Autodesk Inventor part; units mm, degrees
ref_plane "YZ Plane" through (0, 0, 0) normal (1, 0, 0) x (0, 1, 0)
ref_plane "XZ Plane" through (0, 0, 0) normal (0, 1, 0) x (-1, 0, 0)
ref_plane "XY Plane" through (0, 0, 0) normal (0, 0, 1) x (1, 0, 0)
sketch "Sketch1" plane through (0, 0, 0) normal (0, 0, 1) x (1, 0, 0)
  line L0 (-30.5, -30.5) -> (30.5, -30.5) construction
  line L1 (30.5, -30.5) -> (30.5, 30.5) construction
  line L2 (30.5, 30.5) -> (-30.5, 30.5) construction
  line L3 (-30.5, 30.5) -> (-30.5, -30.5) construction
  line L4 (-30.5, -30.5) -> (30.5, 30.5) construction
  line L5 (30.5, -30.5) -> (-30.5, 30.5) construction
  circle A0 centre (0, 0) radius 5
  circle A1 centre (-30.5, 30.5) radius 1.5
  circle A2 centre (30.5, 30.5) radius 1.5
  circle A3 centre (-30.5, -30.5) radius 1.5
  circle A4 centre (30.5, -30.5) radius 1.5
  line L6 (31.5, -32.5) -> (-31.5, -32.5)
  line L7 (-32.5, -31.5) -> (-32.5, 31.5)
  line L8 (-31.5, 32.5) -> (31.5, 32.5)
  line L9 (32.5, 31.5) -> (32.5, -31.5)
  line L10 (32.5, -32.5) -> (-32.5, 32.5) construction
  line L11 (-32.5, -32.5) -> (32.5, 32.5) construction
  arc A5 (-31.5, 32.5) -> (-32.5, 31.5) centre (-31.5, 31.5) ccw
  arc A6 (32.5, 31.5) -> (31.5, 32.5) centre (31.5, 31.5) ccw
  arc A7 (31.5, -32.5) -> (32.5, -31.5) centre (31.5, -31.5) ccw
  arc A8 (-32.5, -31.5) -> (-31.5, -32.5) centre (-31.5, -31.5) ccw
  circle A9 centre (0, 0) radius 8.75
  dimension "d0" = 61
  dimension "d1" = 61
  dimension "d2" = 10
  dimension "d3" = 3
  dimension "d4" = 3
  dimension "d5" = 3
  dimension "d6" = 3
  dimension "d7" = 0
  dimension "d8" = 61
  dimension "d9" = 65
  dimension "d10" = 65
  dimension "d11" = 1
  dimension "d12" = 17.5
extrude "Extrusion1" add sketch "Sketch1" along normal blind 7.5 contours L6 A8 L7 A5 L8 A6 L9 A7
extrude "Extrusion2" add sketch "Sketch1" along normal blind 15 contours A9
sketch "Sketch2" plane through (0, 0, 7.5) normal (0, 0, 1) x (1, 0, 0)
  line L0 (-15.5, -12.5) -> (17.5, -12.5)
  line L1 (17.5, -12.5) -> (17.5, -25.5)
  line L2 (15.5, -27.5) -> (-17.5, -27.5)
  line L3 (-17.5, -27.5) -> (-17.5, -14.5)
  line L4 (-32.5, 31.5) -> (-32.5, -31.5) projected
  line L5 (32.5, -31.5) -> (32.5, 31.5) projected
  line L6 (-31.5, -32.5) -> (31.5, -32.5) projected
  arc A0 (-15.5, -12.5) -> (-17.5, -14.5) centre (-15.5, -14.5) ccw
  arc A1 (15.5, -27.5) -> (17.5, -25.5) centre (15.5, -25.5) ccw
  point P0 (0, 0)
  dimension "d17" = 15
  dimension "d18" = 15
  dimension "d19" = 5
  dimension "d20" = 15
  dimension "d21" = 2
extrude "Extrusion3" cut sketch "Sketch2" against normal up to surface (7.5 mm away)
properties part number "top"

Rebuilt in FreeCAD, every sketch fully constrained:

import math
import FreeCAD as App
import Part
import Sketcher

doc = App.newDocument("Part")
body = doc.addObject("PartDesign::Body", "Body")

sketch1 = doc.addObject("Sketcher::SketchObject", "Sketch")
body.addObject(sketch1)
sketch1.AttachmentSupport = (doc.XY_Plane, [""])
sketch1.MapMode = "FlatFace"
sketch1.addGeometry(Part.LineSegment(App.Vector(-31.5, -32.5, 0), App.Vector(31.5, -32.5, 0)), False)
sketch1.addGeometry(Part.ArcOfCircle(Part.Circle(App.Vector(31.5, -31.5, 0), App.Vector(0, 0, 1), 1), math.radians(-90), math.radians(0)), False)
sketch1.addGeometry(Part.LineSegment(App.Vector(32.5, -31.5, 0), App.Vector(32.5, 31.5, 0)), False)
sketch1.addGeometry(Part.ArcOfCircle(Part.Circle(App.Vector(31.5, 31.5, 0), App.Vector(0, 0, 1), 1), math.radians(0), math.radians(90)), False)
sketch1.addGeometry(Part.LineSegment(App.Vector(31.5, 32.5, 0), App.Vector(-31.5, 32.5, 0)), False)
sketch1.addGeometry(Part.ArcOfCircle(Part.Circle(App.Vector(-31.5, 31.5, 0), App.Vector(0, 0, 1), 1), math.radians(90), math.radians(180)), False)
sketch1.addGeometry(Part.LineSegment(App.Vector(-32.5, 31.5, 0), App.Vector(-32.5, -31.5, 0)), False)
sketch1.addGeometry(Part.ArcOfCircle(Part.Circle(App.Vector(-31.5, -31.5, 0), App.Vector(0, 0, 1), 1), math.radians(180), math.radians(270)), False)
sketch1.addGeometry(Part.Circle(App.Vector(-30.5, -30.5, 0), App.Vector(0, 0, 1), 1.5), False)
sketch1.addGeometry(Part.Circle(App.Vector(30.5, -30.5, 0), App.Vector(0, 0, 1), 1.5), False)
sketch1.addGeometry(Part.Circle(App.Vector(-30.5, 30.5, 0), App.Vector(0, 0, 1), 1.5), False)
sketch1.addGeometry(Part.Circle(App.Vector(0, 0, 0), App.Vector(0, 0, 1), 8.75), False)
sketch1.addGeometry(Part.Circle(App.Vector(30.5, 30.5, 0), App.Vector(0, 0, 1), 1.5), False)
sketch1.addConstraint(Sketcher.Constraint("Tangent", 0, 2, 1, 1))
sketch1.addConstraint(Sketcher.Constraint("Tangent", 1, 2, 2, 1))
sketch1.addConstraint(Sketcher.Constraint("Tangent", 2, 2, 3, 1))
sketch1.addConstraint(Sketcher.Constraint("Tangent", 3, 2, 4, 1))
sketch1.addConstraint(Sketcher.Constraint("Tangent", 4, 2, 5, 1))
sketch1.addConstraint(Sketcher.Constraint("Tangent", 5, 2, 6, 1))
sketch1.addConstraint(Sketcher.Constraint("Tangent", 6, 2, 7, 1))
sketch1.addConstraint(Sketcher.Constraint("Tangent", 7, 2, 0, 1))
sketch1.addConstraint(Sketcher.Constraint("Horizontal", 0))
sketch1.addConstraint(Sketcher.Constraint("Vertical", 2))
sketch1.addConstraint(Sketcher.Constraint("Horizontal", 4))
sketch1.addConstraint(Sketcher.Constraint("Vertical", 6))
sketch1.addConstraint(Sketcher.Constraint("Coincident", 11, 3, -1, 1))
sketch1.addConstraint(Sketcher.Constraint("Equal", 1, 3))
sketch1.addConstraint(Sketcher.Constraint("Equal", 3, 5))
sketch1.addConstraint(Sketcher.Constraint("Equal", 5, 7))
sketch1.addConstraint(Sketcher.Constraint("Equal", 8, 9))
sketch1.addConstraint(Sketcher.Constraint("Equal", 9, 10))
sketch1.addConstraint(Sketcher.Constraint("Equal", 10, 12))
sketch1.addConstraint(Sketcher.Constraint("Symmetric", 1, 3, 5, 3, -1, 1))
sketch1.addConstraint(Sketcher.Constraint("Symmetric", 9, 3, 10, 3, -1, 1))
sketch1.addConstraint(Sketcher.Constraint("Symmetric", 8, 3, 12, 3, -1, 1))
sketch1.addConstraint(Sketcher.Constraint("Symmetric", 8, 3, 9, 3, -2))
sketch1.addConstraint(Sketcher.Constraint("Equal", 4, 2))
sketch1.addConstraint(Sketcher.Constraint("Diameter", 8, 3.0))
sketch1.addConstraint(Sketcher.Constraint("Radius", 1, 1.0))
sketch1.addConstraint(Sketcher.Constraint("Diameter", 11, 17.5))
sketch1.addConstraint(Sketcher.Constraint("DistanceX", 7, 3, 8, 3, 1.0))
sketch1.addConstraint(Sketcher.Constraint("DistanceY", 7, 3, 8, 3, 1.0))
sketch1.addConstraint(Sketcher.Constraint("DistanceX", 8, 3, 9, 3, 61.0))
pad1 = doc.addObject("PartDesign::Pad", "Pad")
body.addObject(pad1)
pad1.Profile = sketch1
pad1.Length = 7.5

sketch2 = doc.addObject("Sketcher::SketchObject", "Sketch001")
body.addObject(sketch2)
sketch2.AttachmentSupport = (doc.XY_Plane, [""])
sketch2.MapMode = "FlatFace"
sketch2.addGeometry(Part.Circle(App.Vector(0, 0, 0), App.Vector(0, 0, 1), 8.75), False)
sketch2.addGeometry(Part.Circle(App.Vector(0, 0, 0), App.Vector(0, 0, 1), 5), False)
sketch2.addConstraint(Sketcher.Constraint("Coincident", 0, 3, -1, 1))
sketch2.addConstraint(Sketcher.Constraint("Coincident", 1, 3, -1, 1))
sketch2.addConstraint(Sketcher.Constraint("Diameter", 1, 10.0))
sketch2.addConstraint(Sketcher.Constraint("Diameter", 0, 17.5))
pad2 = doc.addObject("PartDesign::Pad", "Pad001")
body.addObject(pad2)
pad2.Profile = sketch2
pad2.Length = 15

sketch3 = doc.addObject("Sketcher::SketchObject", "Sketch002")
body.addObject(sketch3)
sketch3.AttachmentSupport = (doc.XY_Plane, [""])
sketch3.MapMode = "FlatFace"
sketch3.AttachmentOffset = App.Placement(App.Vector(0, 0, 7.5), App.Rotation())
sketch3.addGeometry(Part.LineSegment(App.Vector(17.5, -12.5, 0), App.Vector(-15.5, -12.5, 0)), False)
sketch3.addGeometry(Part.ArcOfCircle(Part.Circle(App.Vector(-15.5, -14.5, 0), App.Vector(0, 0, 1), 2), math.radians(90), math.radians(180)), False)
sketch3.addGeometry(Part.LineSegment(App.Vector(-17.5, -14.5, 0), App.Vector(-17.5, -27.5, 0)), False)
sketch3.addGeometry(Part.LineSegment(App.Vector(-17.5, -27.5, 0), App.Vector(15.5, -27.5, 0)), False)
sketch3.addGeometry(Part.ArcOfCircle(Part.Circle(App.Vector(15.5, -25.5, 0), App.Vector(0, 0, 1), 2), math.radians(-90), math.radians(0)), False)
sketch3.addGeometry(Part.LineSegment(App.Vector(17.5, -25.5, 0), App.Vector(17.5, -12.5, 0)), False)
sketch3.addConstraint(Sketcher.Constraint("Tangent", 0, 2, 1, 1))
sketch3.addConstraint(Sketcher.Constraint("Tangent", 1, 2, 2, 1))
sketch3.addConstraint(Sketcher.Constraint("Coincident", 2, 2, 3, 1))
sketch3.addConstraint(Sketcher.Constraint("Tangent", 3, 2, 4, 1))
sketch3.addConstraint(Sketcher.Constraint("Tangent", 4, 2, 5, 1))
sketch3.addConstraint(Sketcher.Constraint("Coincident", 5, 2, 0, 1))
sketch3.addConstraint(Sketcher.Constraint("Horizontal", 0))
sketch3.addConstraint(Sketcher.Constraint("Vertical", 2))
sketch3.addConstraint(Sketcher.Constraint("Horizontal", 3))
sketch3.addConstraint(Sketcher.Constraint("Vertical", 5))
sketch3.addConstraint(Sketcher.Constraint("Equal", 1, 4))
sketch3.addConstraint(Sketcher.Constraint("Radius", 1, 2.0))
sketch3.addConstraint(Sketcher.Constraint("DistanceY", 2, 2, 0, 2, 15.0))
sketch3.addConstraint(Sketcher.Constraint("DistanceX", 0, 2, 0, 1, 33.0))
sketch3.addConstraint(Sketcher.Constraint("DistanceX", 1, 3, -1, 1, 15.5))
sketch3.addConstraint(Sketcher.Constraint("DistanceY", 1, 3, -1, 1, 14.5))
pocket1 = doc.addObject("PartDesign::Pocket", "Pocket")
body.addObject(pocket1)
pocket1.Profile = sketch3
pocket1.Length = 7.5

doc.recompute()
